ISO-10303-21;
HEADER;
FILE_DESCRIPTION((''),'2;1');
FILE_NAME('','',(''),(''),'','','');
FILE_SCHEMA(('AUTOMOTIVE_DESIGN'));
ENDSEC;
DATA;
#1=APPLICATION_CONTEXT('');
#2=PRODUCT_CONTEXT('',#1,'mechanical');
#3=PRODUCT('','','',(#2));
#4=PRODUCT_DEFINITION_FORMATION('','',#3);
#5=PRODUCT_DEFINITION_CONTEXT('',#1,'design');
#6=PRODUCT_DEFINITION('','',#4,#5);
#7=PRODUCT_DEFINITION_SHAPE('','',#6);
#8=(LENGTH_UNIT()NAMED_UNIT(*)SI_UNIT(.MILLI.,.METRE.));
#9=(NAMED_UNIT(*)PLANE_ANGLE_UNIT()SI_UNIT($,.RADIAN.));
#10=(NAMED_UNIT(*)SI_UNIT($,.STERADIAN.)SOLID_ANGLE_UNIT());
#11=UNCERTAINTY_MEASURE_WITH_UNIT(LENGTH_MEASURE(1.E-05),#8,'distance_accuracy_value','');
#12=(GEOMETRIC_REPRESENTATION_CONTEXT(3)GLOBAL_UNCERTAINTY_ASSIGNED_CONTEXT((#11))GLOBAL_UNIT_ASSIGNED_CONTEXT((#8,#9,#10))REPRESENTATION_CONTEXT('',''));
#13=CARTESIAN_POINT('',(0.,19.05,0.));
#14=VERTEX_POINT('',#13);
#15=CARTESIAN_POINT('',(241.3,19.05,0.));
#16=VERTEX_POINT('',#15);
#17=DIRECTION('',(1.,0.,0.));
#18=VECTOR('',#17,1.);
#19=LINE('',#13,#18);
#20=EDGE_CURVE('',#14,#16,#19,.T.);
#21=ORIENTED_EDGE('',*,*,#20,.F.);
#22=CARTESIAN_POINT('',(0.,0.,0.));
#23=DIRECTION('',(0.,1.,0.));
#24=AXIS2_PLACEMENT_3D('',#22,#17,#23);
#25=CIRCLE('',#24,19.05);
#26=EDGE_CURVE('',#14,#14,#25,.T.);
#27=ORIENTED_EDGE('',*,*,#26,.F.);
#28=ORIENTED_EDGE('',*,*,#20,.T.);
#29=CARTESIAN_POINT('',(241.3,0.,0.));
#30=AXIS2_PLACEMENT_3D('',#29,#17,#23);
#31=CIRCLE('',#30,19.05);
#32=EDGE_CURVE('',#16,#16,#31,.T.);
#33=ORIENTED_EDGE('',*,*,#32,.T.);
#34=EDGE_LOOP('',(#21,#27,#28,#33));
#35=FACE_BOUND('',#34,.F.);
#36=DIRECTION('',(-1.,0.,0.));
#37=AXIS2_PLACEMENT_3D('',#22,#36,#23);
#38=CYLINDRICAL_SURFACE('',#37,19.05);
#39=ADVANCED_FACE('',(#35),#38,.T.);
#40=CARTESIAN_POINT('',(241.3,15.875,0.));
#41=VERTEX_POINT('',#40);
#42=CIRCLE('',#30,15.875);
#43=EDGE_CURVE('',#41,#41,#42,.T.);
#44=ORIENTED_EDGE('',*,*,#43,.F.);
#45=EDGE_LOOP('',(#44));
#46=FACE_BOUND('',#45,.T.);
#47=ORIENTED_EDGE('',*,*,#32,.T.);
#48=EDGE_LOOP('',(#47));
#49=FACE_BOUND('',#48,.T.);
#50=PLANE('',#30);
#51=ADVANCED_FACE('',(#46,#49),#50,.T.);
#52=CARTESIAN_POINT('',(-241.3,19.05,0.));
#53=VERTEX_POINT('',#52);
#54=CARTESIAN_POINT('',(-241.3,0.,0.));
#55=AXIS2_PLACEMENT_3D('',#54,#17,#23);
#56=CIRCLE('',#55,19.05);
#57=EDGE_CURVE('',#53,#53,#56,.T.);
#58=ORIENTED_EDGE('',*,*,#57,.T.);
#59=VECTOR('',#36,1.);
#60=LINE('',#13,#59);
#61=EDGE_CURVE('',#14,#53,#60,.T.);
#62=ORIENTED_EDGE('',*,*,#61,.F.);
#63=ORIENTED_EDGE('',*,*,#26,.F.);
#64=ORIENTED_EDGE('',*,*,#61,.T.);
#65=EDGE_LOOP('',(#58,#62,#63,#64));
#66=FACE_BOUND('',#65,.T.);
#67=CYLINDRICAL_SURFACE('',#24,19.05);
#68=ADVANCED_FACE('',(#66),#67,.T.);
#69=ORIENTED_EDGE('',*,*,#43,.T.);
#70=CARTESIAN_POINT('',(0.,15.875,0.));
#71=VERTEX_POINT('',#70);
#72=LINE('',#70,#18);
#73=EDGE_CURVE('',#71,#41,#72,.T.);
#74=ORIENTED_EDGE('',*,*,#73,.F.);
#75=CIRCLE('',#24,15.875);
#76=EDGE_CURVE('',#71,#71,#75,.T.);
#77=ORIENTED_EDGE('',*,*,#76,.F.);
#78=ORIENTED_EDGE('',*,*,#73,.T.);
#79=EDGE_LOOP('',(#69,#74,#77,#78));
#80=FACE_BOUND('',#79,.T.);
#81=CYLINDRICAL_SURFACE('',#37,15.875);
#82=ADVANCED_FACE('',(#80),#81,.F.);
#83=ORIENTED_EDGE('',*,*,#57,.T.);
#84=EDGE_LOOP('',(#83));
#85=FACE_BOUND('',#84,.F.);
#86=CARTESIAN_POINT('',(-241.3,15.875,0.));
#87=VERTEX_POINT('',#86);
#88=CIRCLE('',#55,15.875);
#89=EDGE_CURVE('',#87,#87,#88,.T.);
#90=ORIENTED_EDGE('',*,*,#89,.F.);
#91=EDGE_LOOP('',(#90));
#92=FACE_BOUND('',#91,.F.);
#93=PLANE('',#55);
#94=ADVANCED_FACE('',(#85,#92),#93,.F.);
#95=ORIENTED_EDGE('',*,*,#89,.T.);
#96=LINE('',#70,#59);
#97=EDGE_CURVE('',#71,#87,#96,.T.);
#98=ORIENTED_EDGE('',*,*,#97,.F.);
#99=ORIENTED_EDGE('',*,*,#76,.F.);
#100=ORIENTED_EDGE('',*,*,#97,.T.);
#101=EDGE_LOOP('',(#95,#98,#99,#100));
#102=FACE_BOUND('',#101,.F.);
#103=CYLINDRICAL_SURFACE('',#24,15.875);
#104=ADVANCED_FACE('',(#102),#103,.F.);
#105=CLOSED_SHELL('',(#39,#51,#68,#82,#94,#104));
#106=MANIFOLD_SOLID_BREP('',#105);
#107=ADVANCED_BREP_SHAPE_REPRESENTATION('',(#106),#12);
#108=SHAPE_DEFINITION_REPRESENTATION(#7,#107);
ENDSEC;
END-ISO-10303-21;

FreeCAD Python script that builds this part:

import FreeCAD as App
import Part
import Sketcher

V = App.Vector
Q = App.Units.Quantity

doc = App.newDocument("Part")
body = doc.addObject("PartDesign::Body", "Body")

# Sketch on YZ plane
sketch1 = doc.addObject("Sketcher::SketchObject", "Sketch")
body.addObject(sketch1)
sketch1.AttachmentSupport = (doc.YZ_Plane, [""])
sketch1.MapMode = "FlatFace"
sketch1.addGeometry([
    Part.Circle(V(0, 0, 0), V(0, 0, 1), 19.05),
    Part.Circle(V(0, 0, 0), V(0, 0, 1), 15.875),
], False)
sketch1.addConstraint([
    Sketcher.Constraint("Coincident", 0, 3, -1, 1),
    Sketcher.Constraint("Coincident", 1, 3, -1, 1),
    Sketcher.Constraint("Diameter", 1, Q("1.25 in")),
    Sketcher.Constraint("Diameter", 0, Q("1.5 in")),
])
pad1 = doc.addObject("PartDesign::Pad", "Pad")
body.addObject(pad1)
pad1.Profile = sketch1
pad1.Length = Q("19 in")
pad1.Midplane = True

doc.recompute()
